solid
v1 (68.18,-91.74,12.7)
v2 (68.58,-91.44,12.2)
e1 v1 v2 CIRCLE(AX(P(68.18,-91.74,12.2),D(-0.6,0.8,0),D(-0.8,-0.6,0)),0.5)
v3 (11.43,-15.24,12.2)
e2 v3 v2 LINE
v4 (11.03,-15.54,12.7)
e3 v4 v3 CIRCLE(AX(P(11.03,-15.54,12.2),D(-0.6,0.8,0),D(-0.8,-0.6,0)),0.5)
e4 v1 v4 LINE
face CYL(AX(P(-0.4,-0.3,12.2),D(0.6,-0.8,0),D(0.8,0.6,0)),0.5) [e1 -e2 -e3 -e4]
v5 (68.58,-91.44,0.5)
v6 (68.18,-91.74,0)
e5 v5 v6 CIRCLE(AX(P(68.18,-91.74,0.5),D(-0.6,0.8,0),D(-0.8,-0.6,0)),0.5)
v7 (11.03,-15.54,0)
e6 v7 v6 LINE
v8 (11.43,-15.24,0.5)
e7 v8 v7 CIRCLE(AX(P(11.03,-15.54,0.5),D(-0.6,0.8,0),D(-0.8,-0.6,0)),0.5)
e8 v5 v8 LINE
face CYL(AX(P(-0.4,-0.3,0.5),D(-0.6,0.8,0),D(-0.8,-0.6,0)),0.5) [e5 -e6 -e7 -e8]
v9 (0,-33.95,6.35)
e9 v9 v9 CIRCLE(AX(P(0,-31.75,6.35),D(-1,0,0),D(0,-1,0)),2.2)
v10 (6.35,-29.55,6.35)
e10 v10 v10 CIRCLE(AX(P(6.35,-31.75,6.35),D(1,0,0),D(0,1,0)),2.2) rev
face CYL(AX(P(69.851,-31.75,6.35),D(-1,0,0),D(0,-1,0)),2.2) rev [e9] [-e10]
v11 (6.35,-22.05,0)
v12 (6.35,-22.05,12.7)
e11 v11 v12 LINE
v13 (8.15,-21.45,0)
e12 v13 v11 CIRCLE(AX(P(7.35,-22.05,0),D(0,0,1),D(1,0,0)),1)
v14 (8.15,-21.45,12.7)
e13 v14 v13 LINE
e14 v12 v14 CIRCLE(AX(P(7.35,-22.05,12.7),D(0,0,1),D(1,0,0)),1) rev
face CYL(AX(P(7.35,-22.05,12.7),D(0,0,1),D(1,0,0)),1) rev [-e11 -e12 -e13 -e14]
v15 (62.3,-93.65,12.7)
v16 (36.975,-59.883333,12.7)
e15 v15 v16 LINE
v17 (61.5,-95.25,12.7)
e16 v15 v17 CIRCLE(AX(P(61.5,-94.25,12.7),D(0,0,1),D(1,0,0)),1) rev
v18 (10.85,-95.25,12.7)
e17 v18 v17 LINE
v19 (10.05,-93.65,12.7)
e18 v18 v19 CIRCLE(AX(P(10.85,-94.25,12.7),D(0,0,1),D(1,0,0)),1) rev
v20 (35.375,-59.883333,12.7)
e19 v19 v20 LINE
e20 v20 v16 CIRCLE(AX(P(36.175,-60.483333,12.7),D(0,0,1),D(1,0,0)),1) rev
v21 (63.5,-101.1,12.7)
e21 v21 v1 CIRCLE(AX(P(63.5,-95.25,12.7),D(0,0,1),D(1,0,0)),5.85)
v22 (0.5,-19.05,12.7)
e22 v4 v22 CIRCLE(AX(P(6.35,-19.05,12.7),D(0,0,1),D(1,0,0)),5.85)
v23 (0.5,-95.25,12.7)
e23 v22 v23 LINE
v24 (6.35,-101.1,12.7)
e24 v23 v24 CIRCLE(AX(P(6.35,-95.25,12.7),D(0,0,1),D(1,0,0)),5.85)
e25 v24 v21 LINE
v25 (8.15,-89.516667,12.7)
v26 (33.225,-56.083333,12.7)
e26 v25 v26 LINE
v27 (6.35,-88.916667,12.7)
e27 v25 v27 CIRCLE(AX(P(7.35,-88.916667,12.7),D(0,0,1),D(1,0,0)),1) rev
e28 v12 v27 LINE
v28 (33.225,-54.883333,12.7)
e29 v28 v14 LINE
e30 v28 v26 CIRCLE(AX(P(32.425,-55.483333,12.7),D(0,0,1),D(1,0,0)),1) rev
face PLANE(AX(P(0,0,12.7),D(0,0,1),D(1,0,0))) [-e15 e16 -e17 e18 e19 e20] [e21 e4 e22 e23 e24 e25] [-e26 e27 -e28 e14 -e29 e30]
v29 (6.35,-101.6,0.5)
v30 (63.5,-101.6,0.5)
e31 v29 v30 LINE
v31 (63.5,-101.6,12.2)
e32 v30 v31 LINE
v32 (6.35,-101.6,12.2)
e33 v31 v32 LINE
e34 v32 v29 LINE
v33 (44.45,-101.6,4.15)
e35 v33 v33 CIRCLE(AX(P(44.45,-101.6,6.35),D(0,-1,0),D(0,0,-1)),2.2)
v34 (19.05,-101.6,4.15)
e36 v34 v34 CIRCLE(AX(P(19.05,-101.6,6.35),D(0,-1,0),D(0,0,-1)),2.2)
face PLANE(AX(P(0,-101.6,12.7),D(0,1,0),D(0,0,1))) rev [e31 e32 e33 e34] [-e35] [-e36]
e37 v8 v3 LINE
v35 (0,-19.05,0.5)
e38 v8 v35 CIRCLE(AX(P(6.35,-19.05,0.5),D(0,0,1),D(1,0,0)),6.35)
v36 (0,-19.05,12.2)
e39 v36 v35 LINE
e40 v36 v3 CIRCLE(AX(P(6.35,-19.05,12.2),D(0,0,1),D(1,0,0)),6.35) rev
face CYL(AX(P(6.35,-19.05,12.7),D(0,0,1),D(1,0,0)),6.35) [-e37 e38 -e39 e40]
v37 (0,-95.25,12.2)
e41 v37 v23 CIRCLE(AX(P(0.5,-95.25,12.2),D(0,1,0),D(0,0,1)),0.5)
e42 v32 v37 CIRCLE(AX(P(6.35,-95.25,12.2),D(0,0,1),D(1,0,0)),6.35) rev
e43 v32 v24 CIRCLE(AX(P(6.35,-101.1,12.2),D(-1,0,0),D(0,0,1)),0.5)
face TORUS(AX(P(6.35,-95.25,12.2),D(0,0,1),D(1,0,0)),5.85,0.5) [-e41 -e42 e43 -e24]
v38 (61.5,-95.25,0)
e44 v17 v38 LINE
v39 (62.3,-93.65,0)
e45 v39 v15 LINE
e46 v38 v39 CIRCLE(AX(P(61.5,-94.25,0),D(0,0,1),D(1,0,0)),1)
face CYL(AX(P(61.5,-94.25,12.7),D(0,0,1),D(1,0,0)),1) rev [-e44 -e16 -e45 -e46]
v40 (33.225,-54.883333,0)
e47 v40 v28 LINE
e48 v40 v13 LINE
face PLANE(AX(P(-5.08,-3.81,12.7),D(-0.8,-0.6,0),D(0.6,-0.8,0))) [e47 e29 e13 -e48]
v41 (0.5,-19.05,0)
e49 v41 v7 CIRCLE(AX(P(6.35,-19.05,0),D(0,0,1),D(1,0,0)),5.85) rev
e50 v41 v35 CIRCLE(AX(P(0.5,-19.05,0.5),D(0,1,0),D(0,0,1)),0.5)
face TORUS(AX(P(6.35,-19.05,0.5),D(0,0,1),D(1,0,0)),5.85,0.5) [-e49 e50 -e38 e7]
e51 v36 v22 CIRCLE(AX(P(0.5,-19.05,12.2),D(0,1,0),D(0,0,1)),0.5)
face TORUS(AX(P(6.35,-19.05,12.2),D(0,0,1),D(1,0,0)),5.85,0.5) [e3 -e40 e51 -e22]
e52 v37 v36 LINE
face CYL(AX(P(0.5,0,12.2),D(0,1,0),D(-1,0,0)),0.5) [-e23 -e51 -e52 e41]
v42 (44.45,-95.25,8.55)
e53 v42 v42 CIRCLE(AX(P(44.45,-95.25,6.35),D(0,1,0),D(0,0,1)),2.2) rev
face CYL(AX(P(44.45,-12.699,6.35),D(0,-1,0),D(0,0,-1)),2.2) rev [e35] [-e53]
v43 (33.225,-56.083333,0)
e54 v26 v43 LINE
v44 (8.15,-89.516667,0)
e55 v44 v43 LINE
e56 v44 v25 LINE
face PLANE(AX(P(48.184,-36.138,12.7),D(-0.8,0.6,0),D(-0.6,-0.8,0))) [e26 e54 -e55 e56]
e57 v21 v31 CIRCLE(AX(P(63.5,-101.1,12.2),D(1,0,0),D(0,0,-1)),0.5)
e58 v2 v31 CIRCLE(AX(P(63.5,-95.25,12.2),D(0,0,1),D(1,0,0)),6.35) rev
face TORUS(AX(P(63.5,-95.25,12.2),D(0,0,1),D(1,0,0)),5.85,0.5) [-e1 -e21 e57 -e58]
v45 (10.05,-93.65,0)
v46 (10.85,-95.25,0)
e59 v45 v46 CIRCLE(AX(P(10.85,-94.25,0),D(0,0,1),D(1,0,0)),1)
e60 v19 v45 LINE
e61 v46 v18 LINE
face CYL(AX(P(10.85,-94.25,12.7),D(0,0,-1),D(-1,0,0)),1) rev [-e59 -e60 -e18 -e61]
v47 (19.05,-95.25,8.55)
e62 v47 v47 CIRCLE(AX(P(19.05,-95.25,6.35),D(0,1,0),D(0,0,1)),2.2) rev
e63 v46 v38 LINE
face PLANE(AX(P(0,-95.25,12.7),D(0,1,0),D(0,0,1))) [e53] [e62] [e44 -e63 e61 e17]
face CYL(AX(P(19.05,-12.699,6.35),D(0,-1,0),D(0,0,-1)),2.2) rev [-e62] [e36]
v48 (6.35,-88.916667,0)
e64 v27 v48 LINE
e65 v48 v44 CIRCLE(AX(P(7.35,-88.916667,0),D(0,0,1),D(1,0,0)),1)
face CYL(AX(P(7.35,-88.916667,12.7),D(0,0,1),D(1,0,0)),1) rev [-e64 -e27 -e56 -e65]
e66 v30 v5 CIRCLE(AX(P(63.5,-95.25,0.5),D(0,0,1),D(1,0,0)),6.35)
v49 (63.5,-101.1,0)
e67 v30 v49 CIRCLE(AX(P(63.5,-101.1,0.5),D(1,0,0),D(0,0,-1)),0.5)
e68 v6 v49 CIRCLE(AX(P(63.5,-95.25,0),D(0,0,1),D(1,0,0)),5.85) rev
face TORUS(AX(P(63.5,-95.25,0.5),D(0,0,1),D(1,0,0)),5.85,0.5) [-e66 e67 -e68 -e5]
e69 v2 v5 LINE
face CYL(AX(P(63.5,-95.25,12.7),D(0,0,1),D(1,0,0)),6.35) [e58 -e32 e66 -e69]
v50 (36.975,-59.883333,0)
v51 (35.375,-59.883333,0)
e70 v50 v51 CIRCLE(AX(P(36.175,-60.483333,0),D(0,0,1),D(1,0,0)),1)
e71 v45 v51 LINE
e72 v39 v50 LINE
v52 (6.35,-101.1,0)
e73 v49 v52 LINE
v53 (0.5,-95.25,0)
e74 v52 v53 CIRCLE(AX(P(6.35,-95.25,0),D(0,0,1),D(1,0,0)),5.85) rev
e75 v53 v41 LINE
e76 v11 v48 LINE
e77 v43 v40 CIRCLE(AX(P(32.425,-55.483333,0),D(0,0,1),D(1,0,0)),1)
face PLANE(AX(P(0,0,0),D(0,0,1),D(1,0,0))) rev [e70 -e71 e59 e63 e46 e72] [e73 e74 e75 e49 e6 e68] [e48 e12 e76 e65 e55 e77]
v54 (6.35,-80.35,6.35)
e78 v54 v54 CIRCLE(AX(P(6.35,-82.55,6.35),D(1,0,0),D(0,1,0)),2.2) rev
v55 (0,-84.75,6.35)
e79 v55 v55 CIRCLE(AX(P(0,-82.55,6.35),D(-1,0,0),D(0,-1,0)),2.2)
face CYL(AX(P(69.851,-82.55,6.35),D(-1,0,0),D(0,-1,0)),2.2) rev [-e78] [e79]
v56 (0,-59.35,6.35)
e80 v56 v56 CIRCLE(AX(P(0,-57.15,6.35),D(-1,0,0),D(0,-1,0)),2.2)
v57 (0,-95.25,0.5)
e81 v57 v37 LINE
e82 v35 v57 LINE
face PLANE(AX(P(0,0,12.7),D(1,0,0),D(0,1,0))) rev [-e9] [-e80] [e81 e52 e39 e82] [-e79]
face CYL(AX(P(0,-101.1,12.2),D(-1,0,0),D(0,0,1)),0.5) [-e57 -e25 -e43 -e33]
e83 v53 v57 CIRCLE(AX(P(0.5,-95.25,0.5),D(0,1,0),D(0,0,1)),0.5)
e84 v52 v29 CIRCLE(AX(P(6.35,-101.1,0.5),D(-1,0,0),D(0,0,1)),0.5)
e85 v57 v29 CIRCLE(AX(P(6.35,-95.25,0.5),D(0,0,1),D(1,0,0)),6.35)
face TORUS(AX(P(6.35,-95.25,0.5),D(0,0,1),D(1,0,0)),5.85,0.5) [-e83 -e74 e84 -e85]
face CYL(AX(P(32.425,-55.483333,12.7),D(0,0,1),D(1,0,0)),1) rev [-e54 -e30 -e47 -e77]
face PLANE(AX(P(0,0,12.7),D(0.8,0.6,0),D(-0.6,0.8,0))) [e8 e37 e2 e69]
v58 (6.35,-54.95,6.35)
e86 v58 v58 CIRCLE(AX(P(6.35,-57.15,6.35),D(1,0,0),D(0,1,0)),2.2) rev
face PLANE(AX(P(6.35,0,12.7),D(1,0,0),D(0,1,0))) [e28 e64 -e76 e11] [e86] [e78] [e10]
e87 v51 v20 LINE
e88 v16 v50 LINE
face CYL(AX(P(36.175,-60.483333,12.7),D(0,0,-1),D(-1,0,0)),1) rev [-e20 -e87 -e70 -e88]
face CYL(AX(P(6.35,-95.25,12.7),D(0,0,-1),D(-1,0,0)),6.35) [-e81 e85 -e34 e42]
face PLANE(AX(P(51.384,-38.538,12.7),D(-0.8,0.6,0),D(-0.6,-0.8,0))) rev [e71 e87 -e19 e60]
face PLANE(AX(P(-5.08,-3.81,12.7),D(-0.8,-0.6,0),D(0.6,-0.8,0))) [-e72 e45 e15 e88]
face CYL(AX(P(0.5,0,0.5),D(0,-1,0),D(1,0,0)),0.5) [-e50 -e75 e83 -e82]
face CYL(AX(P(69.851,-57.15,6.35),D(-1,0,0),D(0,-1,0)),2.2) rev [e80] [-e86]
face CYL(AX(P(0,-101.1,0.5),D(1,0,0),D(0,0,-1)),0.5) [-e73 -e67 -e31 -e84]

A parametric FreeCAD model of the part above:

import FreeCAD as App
import Part
import Sketcher
from FreeCAD import Vector
Q = App.Units.Quantity


def edges_at(feature, points):
    """Names of the edges that pass closest to the given points."""
    edges = feature.Shape.Edges
    near = lambda p: min(range(len(edges)), key=lambda i: edges[i].distToShape(Part.Vertex(*p))[0])
    return sorted({f"Edge{near(p) + 1}" for p in points})

doc = App.newDocument("Part")
body = doc.addObject("PartDesign::Body", "Body")

# Sketch on XY plane
sketch1 = body.newObject("Sketcher::SketchObject", "Sketch")
sketch1.AttachmentSupport = (doc.getObject("XY_Plane"), [""])
sketch1.MapMode = "FlatFace"
sketch1.addGeometry([
    Part.LineSegment(Vector(0, 0, 0), Vector(0, -101.6, 0)),  # 0
    Part.LineSegment(Vector(0, -101.6, 0), Vector(76.2, -101.6, 0)),  # 1
    Part.LineSegment(Vector(76.2, -101.6, 0), Vector(0, 0, 0)),  # 2
    Part.LineSegment(Vector(36.175, -58.816667, 0), Vector(63.5, -95.25, 0)),  # 3
    Part.LineSegment(Vector(63.5, -95.25, 0), Vector(8.85, -95.25, 0)),  # 4
    Part.LineSegment(Vector(8.85, -95.25, 0), Vector(36.175, -58.816667, 0)),  # 5
    Part.LineSegment(Vector(6.35, -19.05, 0), Vector(33.675, -55.483333, 0)),  # 6
    Part.LineSegment(Vector(33.675, -55.483333, 0), Vector(6.35, -91.916667, 0)),  # 7
    Part.LineSegment(Vector(6.35, -91.916667, 0), Vector(6.35, -19.05, 0)),  # 8
], False)
sketch1.addConstraint([
    Sketcher.Constraint("Coincident", 0, 2, 1, 1),
    Sketcher.Constraint("Coincident", 1, 2, 2, 1),
    Sketcher.Constraint("Coincident", 2, 2, 0, 1),
    Sketcher.Constraint("Coincident", 3, 2, 4, 1),
    Sketcher.Constraint("Coincident", 4, 2, 5, 1),
    Sketcher.Constraint("Coincident", 5, 2, 3, 1),
    Sketcher.Constraint("Coincident", 6, 2, 7, 1),
    Sketcher.Constraint("Coincident", 7, 2, 8, 1),
    Sketcher.Constraint("Coincident", 8, 2, 6, 1),
    Sketcher.Constraint("Vertical", 0),
    Sketcher.Constraint("Horizontal", 1),
    Sketcher.Constraint("Horizontal", 4),
    Sketcher.Constraint("Vertical", 8),
    Sketcher.Constraint("Coincident", 2, 2, -1, 1),
    Sketcher.Constraint("Parallel", 2, 3),
    Sketcher.Constraint("Parallel", 3, 6),
    Sketcher.Constraint("Parallel", 5, 7),
    Sketcher.Constraint("Equal", 3, 5),
    Sketcher.Constraint("Equal", 5, 6),
    Sketcher.Constraint("DistanceX", 1, 1, 1, 2, Q("3 in")),
    Sketcher.Constraint("DistanceY", 0, 2, 0, 1, Q("4 in")),
    Sketcher.Constraint("DistanceY", 4, 2, 8, 2, Q("3 in")),
    Sketcher.Constraint("DistanceX", -1, 1, 3, 2, Q("2.5 in")),
    Sketcher.Constraint("DistanceY", 3, 2, -1, 1, Q("3.75 in")),
    Sketcher.Constraint("DistanceX", -1, 1, 7, 2, Q("0.25 in")),
    Sketcher.Constraint("DistanceX", 4, 2, 4, 1, 54.65),
])
pad1 = body.newObject("PartDesign::Pad", "Pad")
pad1.Profile = sketch1
pad1.Length = Q("0.5 in")
doc.recompute()

fillet = body.newObject("PartDesign::Fillet", "Fillet")
fillet.Base = (pad1, edges_at(pad1, [(0, 0, 6.35), (76.2, -101.6, 6.35), (0, -101.6, 6.35)]))
fillet.Radius = Q("0.25 in")
doc.recompute()

fillet2 = body.newObject("PartDesign::Fillet", "Fillet001")
fillet2.Base = (fillet, edges_at(fillet, [
    (36.175, -58.817, 6.35),
    (8.85, -95.25, 6.35),
    (63.5, -95.25, 6.35),
    (6.35, -19.05, 6.35),
    (6.35, -91.917, 6.35),
    (33.675, -55.483, 6.35),
]))
fillet2.Radius = 1

# Sketch on XZ plane
sketch2 = body.newObject("Sketcher::SketchObject", "Sketch001")
sketch2.AttachmentSupport = (doc.getObject("XZ_Plane"), [""])
sketch2.MapMode = "FlatFace"
sketch2.AttachmentOffset = App.Placement(Vector(0, 0, 4 * 25.4), App.Rotation())
sketch2.addGeometry(Part.Circle(Vector(19.05, 6.35, 0), Vector(0, 0, 1), 2.2), False)
sketch2.addConstraint([
    Sketcher.Constraint("Diameter", 0, 4.4),
    Sketcher.Constraint("DistanceX", -1, 1, 0, 3, Q("0.75 in")),
    Sketcher.Constraint("DistanceY", -1, 1, 0, 3, Q("0.25 in")),
])
pocket1 = body.newObject("PartDesign::Pocket", "Pocket")
pocket1.Profile = sketch2
pocket1.Type = "UpToFirst"

# Sketch on XZ plane
sketch3 = body.newObject("Sketcher::SketchObject", "Sketch002")
sketch3.AttachmentSupport = (doc.getObject("XZ_Plane"), [""])
sketch3.MapMode = "FlatFace"
sketch3.AttachmentOffset = App.Placement(Vector(0, 0, 4 * 25.4), App.Rotation())
sketch3.addGeometry(Part.Circle(Vector(44.45, 6.35, 0), Vector(0, 0, 1), 2.2), False)
sketch3.addConstraint([
    Sketcher.Constraint("Diameter", 0, 4.4),
    Sketcher.Constraint("DistanceX", -1, 1, 0, 3, Q("1.75 in")),
    Sketcher.Constraint("DistanceY", -1, 1, 0, 3, Q("0.25 in")),
])
pocket2 = body.newObject("PartDesign::Pocket", "Pocket001")
pocket2.Profile = sketch3
pocket2.Type = "UpToFirst"

# Sketch on YZ plane
sketch4 = body.newObject("Sketcher::SketchObject", "Sketch003")
sketch4.AttachmentSupport = (doc.getObject("YZ_Plane"), [""])
sketch4.MapMode = "FlatFace"
sketch4.addGeometry(Part.Circle(Vector(-82.55, 6.35, 0), Vector(0, 0, 1), 2.2), False)
sketch4.addConstraint([
    Sketcher.Constraint("Diameter", 0, 4.4),
    Sketcher.Constraint("DistanceX", 0, 3, -1, 1, Q("3.25 in")),
    Sketcher.Constraint("DistanceY", -1, 1, 0, 3, Q("0.25 in")),
])
pocket3 = body.newObject("PartDesign::Pocket", "Pocket002")
pocket3.Profile = sketch4
pocket3.Type = "UpToFirst"
pocket3.Reversed = True

# Sketch on YZ plane
sketch5 = body.newObject("Sketcher::SketchObject", "Sketch004")
sketch5.AttachmentSupport = (doc.getObject("YZ_Plane"), [""])
sketch5.MapMode = "FlatFace"
sketch5.addGeometry(Part.Circle(Vector(-57.15, 6.35, 0), Vector(0, 0, 1), 2.2), False)
sketch5.addConstraint([
    Sketcher.Constraint("Diameter", 0, 4.4),
    Sketcher.Constraint("DistanceX", 0, 3, -1, 1, Q("2.25 in")),
    Sketcher.Constraint("DistanceY", -1, 1, 0, 3, Q("0.25 in")),
])
pocket4 = body.newObject("PartDesign::Pocket", "Pocket003")
pocket4.Profile = sketch5
pocket4.Type = "UpToFirst"
pocket4.Reversed = True

# Sketch on YZ plane
sketch6 = body.newObject("Sketcher::SketchObject", "Sketch005")
sketch6.AttachmentSupport = (doc.getObject("YZ_Plane"), [""])
sketch6.MapMode = "FlatFace"
sketch6.addGeometry(Part.Circle(Vector(-31.75, 6.35, 0), Vector(0, 0, 1), 2.2), False)
sketch6.addConstraint([
    Sketcher.Constraint("Diameter", 0, 4.4),
    Sketcher.Constraint("DistanceX", 0, 3, -1, 1, Q("1.25 in")),
    Sketcher.Constraint("DistanceY", -1, 1, 0, 3, Q("0.25 in")),
])
pocket5 = body.newObject("PartDesign::Pocket", "Pocket004")
pocket5.Profile = sketch6
pocket5.Type = "UpToFirst"
pocket5.Reversed = True
doc.recompute()

fillet3 = body.newObject("PartDesign::Fillet", "Fillet002")
fillet3.Base = (pocket5, edges_at(pocket5, [
    (34.925, -101.6, 0),
    (34.925, -101.6, 12.7),
    (0, -57.15, 0),
    (40.005, -53.34, 0),
    (69.18, -98.09, 0),
    (4.342, -13.026, 0),
    (1.86, -99.74, 0),
    (0, -57.15, 12.7),
    (40.005, -53.34, 12.7),
    (69.18, -98.09, 12.7),
    (4.342, -13.026, 12.7),
    (1.86, -99.74, 12.7),
]))
fillet3.Radius = 0.5

doc.recompute()
